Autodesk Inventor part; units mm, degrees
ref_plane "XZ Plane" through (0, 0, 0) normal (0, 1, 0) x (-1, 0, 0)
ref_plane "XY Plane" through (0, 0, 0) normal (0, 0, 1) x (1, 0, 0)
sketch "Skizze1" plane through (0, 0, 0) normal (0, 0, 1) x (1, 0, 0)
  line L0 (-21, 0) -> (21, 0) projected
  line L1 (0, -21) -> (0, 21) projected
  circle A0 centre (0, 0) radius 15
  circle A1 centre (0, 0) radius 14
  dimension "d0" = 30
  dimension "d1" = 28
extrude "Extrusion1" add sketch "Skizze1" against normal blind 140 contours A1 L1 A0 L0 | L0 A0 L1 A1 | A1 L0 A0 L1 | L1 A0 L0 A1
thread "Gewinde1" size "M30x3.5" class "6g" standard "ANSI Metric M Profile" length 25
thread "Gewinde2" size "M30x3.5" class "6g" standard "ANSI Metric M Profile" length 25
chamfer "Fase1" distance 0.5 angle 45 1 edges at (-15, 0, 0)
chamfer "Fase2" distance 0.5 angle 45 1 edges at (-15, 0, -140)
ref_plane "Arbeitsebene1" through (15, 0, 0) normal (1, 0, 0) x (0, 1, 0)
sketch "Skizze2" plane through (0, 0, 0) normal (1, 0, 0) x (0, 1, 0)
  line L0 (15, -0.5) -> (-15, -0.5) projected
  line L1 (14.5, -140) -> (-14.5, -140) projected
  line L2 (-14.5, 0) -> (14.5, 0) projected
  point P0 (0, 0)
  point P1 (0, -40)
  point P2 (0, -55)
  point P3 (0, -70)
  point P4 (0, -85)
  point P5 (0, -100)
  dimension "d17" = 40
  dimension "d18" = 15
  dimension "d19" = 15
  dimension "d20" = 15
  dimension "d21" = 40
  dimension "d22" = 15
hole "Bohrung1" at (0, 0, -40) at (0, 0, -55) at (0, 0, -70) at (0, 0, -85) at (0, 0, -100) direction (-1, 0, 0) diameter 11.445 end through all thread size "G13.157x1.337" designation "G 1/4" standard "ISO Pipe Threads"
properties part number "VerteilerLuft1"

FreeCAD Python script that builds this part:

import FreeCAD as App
import Part
import Sketcher
from FreeCAD import Vector


def edges_at(feature, points):
    """Names of the edges that pass closest to the given points."""
    edges = feature.Shape.Edges
    near = lambda p: min(range(len(edges)), key=lambda i: edges[i].distToShape(Part.Vertex(*p))[0])
    return sorted({f"Edge{near(p) + 1}" for p in points})

doc = App.newDocument("Part")
body = doc.addObject("PartDesign::Body", "Body")

sketch1 = doc.addObject("Sketcher::SketchObject", "Sketch")
body.addObject(sketch1)
sketch1.AttachmentSupport = (doc.XY_Plane, [""])
sketch1.MapMode = "FlatFace"
sketch1.addGeometry(Part.Circle(Vector(0, 0, 0), Vector(0, 0, 1), 15), False)
sketch1.addGeometry(Part.Circle(Vector(0, 0, 0), Vector(0, 0, 1), 14), False)
sketch1.addConstraint(Sketcher.Constraint("Coincident", 0, 3, -1, 1))
sketch1.addConstraint(Sketcher.Constraint("Coincident", 1, 3, -1, 1))
sketch1.addConstraint(Sketcher.Constraint("Diameter", 0, 30.0))
sketch1.addConstraint(Sketcher.Constraint("Diameter", 1, 28.0))
pad1 = doc.addObject("PartDesign::Pad", "Pad")
body.addObject(pad1)
pad1.Profile = sketch1
pad1.Length = 140
pad1.Reversed = True
doc.recompute()

chamfer = doc.addObject("PartDesign::Chamfer", "Chamfer")
body.addObject(chamfer)
chamfer.Base = (pad1, edges_at(pad1, [(-15, 0, 0)]))
chamfer.Size = 0.5
doc.recompute()

chamfer2 = doc.addObject("PartDesign::Chamfer", "Chamfer001")
body.addObject(chamfer2)
chamfer2.Base = (chamfer, edges_at(chamfer, [(-15, 0, -140)]))
chamfer2.Size = 0.5

sketch2 = doc.addObject("Sketcher::SketchObject", "Sketch001")
body.addObject(sketch2)
sketch2.AttachmentSupport = (doc.YZ_Plane, [""])
sketch2.MapMode = "FlatFace"
sketch2.addGeometry(Part.Circle(Vector(0, -40, 0), Vector(0, 0, 1), 6), False)
sketch2.addGeometry(Part.Circle(Vector(0, -55, 0), Vector(0, 0, 1), 6), False)
sketch2.addGeometry(Part.Circle(Vector(0, -70, 0), Vector(0, 0, 1), 6), False)
sketch2.addGeometry(Part.Circle(Vector(0, -85, 0), Vector(0, 0, 1), 6), False)
sketch2.addGeometry(Part.Circle(Vector(0, -100, 0), Vector(0, 0, 1), 6), False)
sketch2.addConstraint(Sketcher.Constraint("Equal", 0, 1))
sketch2.addConstraint(Sketcher.Constraint("Equal", 1, 2))
sketch2.addConstraint(Sketcher.Constraint("Equal", 2, 3))
sketch2.addConstraint(Sketcher.Constraint("Equal", 3, 4))
sketch2.addConstraint(Sketcher.Constraint("PointOnObject", 0, 3, -2))
sketch2.addConstraint(Sketcher.Constraint("PointOnObject", 1, 3, -2))
sketch2.addConstraint(Sketcher.Constraint("PointOnObject", 2, 3, -2))
sketch2.addConstraint(Sketcher.Constraint("PointOnObject", 3, 3, -2))
sketch2.addConstraint(Sketcher.Constraint("PointOnObject", 4, 3, -2))
sketch2.addConstraint(Sketcher.Constraint("Diameter", 0, 11.445))
sketch2.addConstraint(Sketcher.Constraint("DistanceY", 0, 3, -1, 1, 40.0))
sketch2.addConstraint(Sketcher.Constraint("DistanceY", 1, 3, -1, 1, 55.0))
sketch2.addConstraint(Sketcher.Constraint("DistanceY", 2, 3, -1, 1, 70.0))
sketch2.addConstraint(Sketcher.Constraint("DistanceY", 3, 3, -1, 1, 85.0))
sketch2.addConstraint(Sketcher.Constraint("DistanceY", 4, 3, -1, 1, 100.0))
doc.recompute()
hole = doc.addObject("PartDesign::Hole", "Hole")
body.addObject(hole)
hole.Profile = sketch2
hole.ThreadType = "None"
hole.Diameter = 11.445
hole.DepthType = "ThroughAll"

doc.recompute()
